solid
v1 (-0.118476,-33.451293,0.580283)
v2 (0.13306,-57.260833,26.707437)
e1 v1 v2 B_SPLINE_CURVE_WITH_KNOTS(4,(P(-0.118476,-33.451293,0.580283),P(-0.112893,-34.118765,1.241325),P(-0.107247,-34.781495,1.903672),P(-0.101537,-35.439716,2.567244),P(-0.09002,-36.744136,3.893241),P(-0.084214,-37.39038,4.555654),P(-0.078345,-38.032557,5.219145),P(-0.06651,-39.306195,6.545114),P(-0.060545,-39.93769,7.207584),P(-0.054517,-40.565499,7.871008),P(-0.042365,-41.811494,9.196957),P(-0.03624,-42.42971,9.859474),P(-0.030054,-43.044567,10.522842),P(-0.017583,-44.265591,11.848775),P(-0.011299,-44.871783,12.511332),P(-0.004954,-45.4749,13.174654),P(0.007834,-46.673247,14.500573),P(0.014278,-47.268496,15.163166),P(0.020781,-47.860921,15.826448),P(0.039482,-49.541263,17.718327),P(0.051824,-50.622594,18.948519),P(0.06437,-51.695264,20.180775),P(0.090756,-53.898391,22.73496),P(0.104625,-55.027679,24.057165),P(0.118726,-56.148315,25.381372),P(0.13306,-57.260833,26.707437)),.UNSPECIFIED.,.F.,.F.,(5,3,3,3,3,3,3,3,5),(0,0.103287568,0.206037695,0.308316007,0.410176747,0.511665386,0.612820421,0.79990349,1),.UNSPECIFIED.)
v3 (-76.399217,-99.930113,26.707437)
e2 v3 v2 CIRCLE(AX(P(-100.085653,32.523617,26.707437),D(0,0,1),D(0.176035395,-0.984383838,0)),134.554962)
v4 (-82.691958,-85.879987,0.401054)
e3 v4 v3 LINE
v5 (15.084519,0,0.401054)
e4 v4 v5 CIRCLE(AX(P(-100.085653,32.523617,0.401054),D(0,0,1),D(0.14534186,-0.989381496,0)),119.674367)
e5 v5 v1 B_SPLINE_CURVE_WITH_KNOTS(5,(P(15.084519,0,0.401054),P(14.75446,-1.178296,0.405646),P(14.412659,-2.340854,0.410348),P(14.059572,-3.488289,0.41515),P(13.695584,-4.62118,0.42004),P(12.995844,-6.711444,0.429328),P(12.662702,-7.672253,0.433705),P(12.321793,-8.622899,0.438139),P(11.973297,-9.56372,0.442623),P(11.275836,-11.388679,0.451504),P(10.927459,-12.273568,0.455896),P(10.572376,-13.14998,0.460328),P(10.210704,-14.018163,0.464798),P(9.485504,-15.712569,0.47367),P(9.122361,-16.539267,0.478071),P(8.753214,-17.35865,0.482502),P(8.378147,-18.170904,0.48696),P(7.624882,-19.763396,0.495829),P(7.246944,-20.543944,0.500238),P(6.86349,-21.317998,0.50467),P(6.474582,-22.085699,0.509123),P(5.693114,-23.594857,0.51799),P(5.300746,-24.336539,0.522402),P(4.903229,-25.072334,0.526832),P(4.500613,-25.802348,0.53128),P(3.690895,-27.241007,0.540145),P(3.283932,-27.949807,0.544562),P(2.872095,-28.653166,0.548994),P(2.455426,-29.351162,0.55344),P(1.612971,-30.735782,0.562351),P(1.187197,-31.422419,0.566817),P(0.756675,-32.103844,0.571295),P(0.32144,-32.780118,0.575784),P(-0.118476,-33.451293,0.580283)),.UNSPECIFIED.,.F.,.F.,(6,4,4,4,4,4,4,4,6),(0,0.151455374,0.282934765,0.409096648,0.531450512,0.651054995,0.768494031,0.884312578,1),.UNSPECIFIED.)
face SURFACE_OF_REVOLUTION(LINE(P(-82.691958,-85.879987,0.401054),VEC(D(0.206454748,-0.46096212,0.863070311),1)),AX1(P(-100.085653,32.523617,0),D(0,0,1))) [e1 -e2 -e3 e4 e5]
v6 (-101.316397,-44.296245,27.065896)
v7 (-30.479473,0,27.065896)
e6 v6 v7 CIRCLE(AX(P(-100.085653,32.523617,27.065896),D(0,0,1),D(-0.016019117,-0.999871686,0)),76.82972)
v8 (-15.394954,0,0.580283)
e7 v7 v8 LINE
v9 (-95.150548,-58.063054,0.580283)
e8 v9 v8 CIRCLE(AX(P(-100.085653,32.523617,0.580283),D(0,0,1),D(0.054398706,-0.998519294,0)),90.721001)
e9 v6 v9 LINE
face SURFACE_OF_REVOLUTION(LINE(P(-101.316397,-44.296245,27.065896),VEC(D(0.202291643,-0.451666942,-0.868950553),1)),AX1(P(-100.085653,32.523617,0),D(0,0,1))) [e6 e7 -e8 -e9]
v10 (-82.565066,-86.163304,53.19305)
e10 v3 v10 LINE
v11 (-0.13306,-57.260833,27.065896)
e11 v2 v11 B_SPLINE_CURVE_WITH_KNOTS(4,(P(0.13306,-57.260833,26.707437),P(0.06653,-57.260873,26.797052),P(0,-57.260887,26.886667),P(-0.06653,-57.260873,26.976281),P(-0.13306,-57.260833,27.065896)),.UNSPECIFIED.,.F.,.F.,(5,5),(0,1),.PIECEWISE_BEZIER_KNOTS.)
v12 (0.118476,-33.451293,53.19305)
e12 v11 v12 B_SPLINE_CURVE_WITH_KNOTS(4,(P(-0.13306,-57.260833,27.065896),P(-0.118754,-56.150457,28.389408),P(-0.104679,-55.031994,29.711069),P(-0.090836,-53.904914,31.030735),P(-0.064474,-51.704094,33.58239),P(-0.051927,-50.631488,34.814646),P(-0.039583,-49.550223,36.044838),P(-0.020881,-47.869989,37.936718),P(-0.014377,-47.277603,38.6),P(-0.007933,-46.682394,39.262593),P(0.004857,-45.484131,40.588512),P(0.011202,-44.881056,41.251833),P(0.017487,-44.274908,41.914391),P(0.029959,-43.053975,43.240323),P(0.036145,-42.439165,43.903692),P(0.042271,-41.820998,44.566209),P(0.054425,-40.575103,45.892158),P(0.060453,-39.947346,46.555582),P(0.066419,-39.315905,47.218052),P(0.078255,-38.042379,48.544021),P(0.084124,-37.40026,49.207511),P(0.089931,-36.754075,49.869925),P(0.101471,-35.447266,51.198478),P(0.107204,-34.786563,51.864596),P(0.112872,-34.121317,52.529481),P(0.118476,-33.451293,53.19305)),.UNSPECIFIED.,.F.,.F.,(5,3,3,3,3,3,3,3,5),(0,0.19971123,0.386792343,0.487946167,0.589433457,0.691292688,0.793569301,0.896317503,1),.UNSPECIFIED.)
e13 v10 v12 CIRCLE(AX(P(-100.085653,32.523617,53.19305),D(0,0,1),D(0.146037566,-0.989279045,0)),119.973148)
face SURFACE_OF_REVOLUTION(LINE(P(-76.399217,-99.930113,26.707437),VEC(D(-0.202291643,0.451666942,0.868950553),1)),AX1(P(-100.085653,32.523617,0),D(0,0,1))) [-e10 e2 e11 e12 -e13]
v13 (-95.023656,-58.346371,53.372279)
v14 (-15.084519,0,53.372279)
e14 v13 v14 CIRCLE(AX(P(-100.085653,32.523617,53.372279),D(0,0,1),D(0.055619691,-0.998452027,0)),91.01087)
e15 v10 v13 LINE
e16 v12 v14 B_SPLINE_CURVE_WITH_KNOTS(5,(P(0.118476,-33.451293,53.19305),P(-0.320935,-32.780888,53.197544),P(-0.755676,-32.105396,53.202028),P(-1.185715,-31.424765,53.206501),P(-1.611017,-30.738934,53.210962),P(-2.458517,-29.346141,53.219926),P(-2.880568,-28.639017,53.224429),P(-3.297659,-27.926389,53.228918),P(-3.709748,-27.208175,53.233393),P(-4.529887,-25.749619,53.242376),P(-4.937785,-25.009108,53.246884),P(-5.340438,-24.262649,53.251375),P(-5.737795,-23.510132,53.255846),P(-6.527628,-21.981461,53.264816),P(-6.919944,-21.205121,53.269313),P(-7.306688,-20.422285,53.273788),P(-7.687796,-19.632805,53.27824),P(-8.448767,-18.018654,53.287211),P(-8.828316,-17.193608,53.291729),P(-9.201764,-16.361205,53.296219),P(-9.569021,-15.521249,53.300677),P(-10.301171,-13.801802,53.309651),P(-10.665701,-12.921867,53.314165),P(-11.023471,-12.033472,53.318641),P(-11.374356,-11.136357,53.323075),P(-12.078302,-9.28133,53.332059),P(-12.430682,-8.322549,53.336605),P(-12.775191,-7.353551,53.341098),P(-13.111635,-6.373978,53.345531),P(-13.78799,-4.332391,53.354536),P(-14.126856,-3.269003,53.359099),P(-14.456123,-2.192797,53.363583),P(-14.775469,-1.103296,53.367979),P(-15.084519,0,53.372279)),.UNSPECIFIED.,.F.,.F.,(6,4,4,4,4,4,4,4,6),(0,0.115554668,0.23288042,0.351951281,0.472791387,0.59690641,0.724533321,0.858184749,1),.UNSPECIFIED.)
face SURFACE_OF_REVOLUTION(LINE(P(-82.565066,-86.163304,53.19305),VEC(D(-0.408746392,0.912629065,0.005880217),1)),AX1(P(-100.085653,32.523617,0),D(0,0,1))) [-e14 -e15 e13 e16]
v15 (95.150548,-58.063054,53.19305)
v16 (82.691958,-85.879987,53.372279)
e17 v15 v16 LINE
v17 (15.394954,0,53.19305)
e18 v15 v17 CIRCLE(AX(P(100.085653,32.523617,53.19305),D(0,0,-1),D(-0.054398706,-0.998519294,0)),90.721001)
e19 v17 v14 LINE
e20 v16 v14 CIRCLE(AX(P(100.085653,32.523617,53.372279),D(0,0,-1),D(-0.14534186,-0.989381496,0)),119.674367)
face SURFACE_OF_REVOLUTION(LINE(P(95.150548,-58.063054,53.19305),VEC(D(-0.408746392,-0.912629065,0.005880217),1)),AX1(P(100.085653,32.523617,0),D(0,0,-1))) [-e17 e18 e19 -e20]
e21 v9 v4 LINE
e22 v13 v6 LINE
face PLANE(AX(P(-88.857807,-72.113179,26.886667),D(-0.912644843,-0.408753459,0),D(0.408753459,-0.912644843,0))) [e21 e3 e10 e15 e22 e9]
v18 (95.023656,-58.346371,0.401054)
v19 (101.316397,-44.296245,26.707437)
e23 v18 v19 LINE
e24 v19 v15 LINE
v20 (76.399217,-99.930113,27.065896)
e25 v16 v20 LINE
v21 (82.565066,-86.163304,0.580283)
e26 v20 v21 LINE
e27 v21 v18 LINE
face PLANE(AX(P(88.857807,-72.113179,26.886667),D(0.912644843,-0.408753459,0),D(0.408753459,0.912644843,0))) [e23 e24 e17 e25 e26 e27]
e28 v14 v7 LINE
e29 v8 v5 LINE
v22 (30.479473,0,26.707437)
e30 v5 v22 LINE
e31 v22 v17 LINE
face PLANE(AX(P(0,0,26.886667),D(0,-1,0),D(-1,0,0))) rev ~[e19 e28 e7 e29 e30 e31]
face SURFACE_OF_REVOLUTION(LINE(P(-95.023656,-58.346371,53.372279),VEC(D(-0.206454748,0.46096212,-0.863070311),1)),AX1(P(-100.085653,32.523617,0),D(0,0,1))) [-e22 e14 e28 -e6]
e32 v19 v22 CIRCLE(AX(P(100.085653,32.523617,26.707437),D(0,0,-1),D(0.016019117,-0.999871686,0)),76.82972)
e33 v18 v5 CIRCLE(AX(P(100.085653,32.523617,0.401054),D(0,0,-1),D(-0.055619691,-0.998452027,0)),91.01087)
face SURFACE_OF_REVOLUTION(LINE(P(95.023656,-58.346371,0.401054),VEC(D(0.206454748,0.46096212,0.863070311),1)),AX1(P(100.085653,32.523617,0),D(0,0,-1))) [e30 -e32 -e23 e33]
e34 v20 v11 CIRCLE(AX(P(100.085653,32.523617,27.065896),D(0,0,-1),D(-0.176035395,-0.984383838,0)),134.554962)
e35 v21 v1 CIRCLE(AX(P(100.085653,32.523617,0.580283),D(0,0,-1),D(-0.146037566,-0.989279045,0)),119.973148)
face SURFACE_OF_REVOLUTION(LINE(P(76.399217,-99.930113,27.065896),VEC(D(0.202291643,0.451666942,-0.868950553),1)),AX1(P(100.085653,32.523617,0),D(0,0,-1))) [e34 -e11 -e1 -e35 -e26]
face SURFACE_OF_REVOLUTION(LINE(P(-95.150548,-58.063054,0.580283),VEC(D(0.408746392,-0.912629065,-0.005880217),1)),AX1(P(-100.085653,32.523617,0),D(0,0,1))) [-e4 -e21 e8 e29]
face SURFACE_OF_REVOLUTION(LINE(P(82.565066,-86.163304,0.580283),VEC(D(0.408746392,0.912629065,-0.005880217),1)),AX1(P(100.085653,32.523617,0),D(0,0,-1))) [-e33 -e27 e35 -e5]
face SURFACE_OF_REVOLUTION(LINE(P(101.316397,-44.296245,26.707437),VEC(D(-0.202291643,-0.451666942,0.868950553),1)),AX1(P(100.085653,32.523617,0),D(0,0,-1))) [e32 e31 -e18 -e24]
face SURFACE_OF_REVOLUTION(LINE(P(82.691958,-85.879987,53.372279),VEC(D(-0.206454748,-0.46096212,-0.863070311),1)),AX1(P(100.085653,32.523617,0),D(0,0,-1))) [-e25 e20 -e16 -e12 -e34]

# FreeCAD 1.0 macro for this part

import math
import FreeCAD as App
import Part
import Sketcher
Q = App.Units.Quantity

doc = App.newDocument("Part")
params = doc.addObject("Spreadsheet::Sheet", "Params")
for row, (alias, value) in enumerate([
    ("sketch1_length", "1.2 in"),
    ("sketch3_length", "1.2 in"),
], start=1):
    params.set(f"A{row}", alias)
    params.set(f"B{row}", "=" + value)
    params.setAlias(f"B{row}", alias)

body = doc.addObject("PartDesign::Body", "Body")

# Sketch on XZ plane
sketch1 = body.newObject("Sketcher::SketchObject", "Sketch")
sketch1.AttachmentSupport = (doc.getObject("XZ_Plane"), [""])
sketch1.MapMode = "FlatFace"
sketch1.addGeometry(Part.LineSegment(App.Vector(-30.479473, 27.065896, 0), App.Vector(-15.394954, 0.580283, 0)), False)
sketch1.addGeometry(Part.LineSegment(App.Vector(-15.394954, 0.580283, 0), App.Vector(15.084519, 0.401054, 0)), False)
sketch1.addGeometry(Part.LineSegment(App.Vector(15.084519, 0.401054, 0), App.Vector(30.479473, 26.707437, 0)), False)
sketch1.addGeometry(Part.LineSegment(App.Vector(30.479473, 26.707437, 0), App.Vector(15.394954, 53.19305, 0)), False)
sketch1.addGeometry(Part.LineSegment(App.Vector(15.394954, 53.19305, 0), App.Vector(-15.084519, 53.372279, 0)), False)
sketch1.addGeometry(Part.LineSegment(App.Vector(-15.084519, 53.372279, 0), App.Vector(-30.479473, 27.065896, 0)), False)
sketch1.addConstraint(Sketcher.Constraint("Coincident", 0, 2, 1, 1))
sketch1.addConstraint(Sketcher.Constraint("Coincident", 1, 2, 2, 1))
sketch1.addConstraint(Sketcher.Constraint("Coincident", 2, 2, 3, 1))
sketch1.addConstraint(Sketcher.Constraint("Coincident", 3, 2, 4, 1))
sketch1.addConstraint(Sketcher.Constraint("Coincident", 4, 2, 5, 1))
sketch1.addConstraint(Sketcher.Constraint("Coincident", 5, 2, 0, 1))
sketch1.addConstraint(Sketcher.Constraint("Parallel", 0, 3))
sketch1.addConstraint(Sketcher.Constraint("Parallel", 1, 4))
sketch1.addConstraint(Sketcher.Constraint("Parallel", 2, 5))
sketch1.addConstraint(Sketcher.Constraint("Equal", 0, 1))
sketch1.addConstraint(Sketcher.Constraint("Equal", 1, 2))
sketch1.addConstraint(Sketcher.Constraint("Equal", 2, 3))
sketch1.addConstraint(Sketcher.Constraint("Distance", 0, Q("1.2 in")))
sketch1.addConstraint(Sketcher.Constraint("DistanceX", -1, 1, 1, 2, Q("15.084519 mm")))
sketch1.addConstraint(Sketcher.Constraint("DistanceY", -1, 1, 3, 2, Q("53.19305 mm")))
sketch1.addConstraint(Sketcher.Constraint("DistanceX", 4, 2, -1, 1, Q("15.084519 mm")))
sketch1.addConstraint(Sketcher.Constraint("DistanceY", -1, 1, 4, 2, Q("53.372279 mm")))
sketch1.addConstraint(Sketcher.Constraint("DistanceX", 3, 2, 2, 2, Q("15.084519 mm")))
sketch1.setExpression("Constraints[12]", "Params.sketch1_length")

# Sketch on XY plane
sketch2 = body.newObject("Sketcher::SketchObject", "Sketch001")
sketch2.AttachmentSupport = (doc.getObject("XY_Plane"), [""])
sketch2.MapMode = "FlatFace"
sketch2.addGeometry(Part.ArcOfCircle(Part.Circle(App.Vector(-100.085653, 32.523617, 0), App.Vector(0, 0, 1), 105.237463), math.radians(-83.875423), math.radians(-18.001976)), False)
sketch2.addConstraint(Sketcher.Constraint("Coincident", 0, 2, -1, 1))
sketch2.addConstraint(Sketcher.Constraint("Radius", 0, Q("105.237463 mm")))
sketch2.addConstraint(Sketcher.Constraint("DistanceY", 0, 1, -1, 1, Q("72.113179 mm")))
sketch2.addConstraint(Sketcher.Constraint("DistanceX", 0, 3, -1, 1, Q("100.085653 mm")))
doc.recompute()

additivepipe = body.newObject("PartDesign::AdditivePipe", "AdditivePipe")
additivepipe.Profile = sketch1
additivepipe.Spine = (sketch2, ["Edge1"])

# Sketch on XZ plane
sketch3 = body.newObject("Sketcher::SketchObject", "Sketch002")
sketch3.AttachmentSupport = (doc.getObject("XZ_Plane"), [""])
sketch3.MapMode = "FlatFace"
sketch3.addGeometry(Part.LineSegment(App.Vector(-30.479473, 27.065896, 0), App.Vector(-15.394954, 0.580283, 0)), False)
sketch3.addGeometry(Part.LineSegment(App.Vector(-15.394954, 0.580283, 0), App.Vector(15.084519, 0.401054, 0)), False)
sketch3.addGeometry(Part.LineSegment(App.Vector(15.084519, 0.401054, 0), App.Vector(30.479473, 26.707437, 0)), False)
sketch3.addGeometry(Part.LineSegment(App.Vector(30.479473, 26.707437, 0), App.Vector(15.394954, 53.19305, 0)), False)
sketch3.addGeometry(Part.LineSegment(App.Vector(15.394954, 53.19305, 0), App.Vector(-15.084519, 53.372279, 0)), False)
sketch3.addGeometry(Part.LineSegment(App.Vector(-15.084519, 53.372279, 0), App.Vector(-30.479473, 27.065896, 0)), False)
sketch3.addConstraint(Sketcher.Constraint("Coincident", 0, 2, 1, 1))
sketch3.addConstraint(Sketcher.Constraint("Coincident", 1, 2, 2, 1))
sketch3.addConstraint(Sketcher.Constraint("Coincident", 2, 2, 3, 1))
sketch3.addConstraint(Sketcher.Constraint("Coincident", 3, 2, 4, 1))
sketch3.addConstraint(Sketcher.Constraint("Coincident", 4, 2, 5, 1))
sketch3.addConstraint(Sketcher.Constraint("Coincident", 5, 2, 0, 1))
sketch3.addConstraint(Sketcher.Constraint("Parallel", 0, 3))
sketch3.addConstraint(Sketcher.Constraint("Parallel", 1, 4))
sketch3.addConstraint(Sketcher.Constraint("Parallel", 2, 5))
sketch3.addConstraint(Sketcher.Constraint("Equal", 0, 1))
sketch3.addConstraint(Sketcher.Constraint("Equal", 1, 2))
sketch3.addConstraint(Sketcher.Constraint("Equal", 2, 3))
sketch3.addConstraint(Sketcher.Constraint("Distance", 0, Q("1.2 in")))
sketch3.addConstraint(Sketcher.Constraint("DistanceX", -1, 1, 1, 2, Q("15.084519 mm")))
sketch3.addConstraint(Sketcher.Constraint("DistanceY", -1, 1, 3, 2, Q("53.19305 mm")))
sketch3.addConstraint(Sketcher.Constraint("DistanceX", 4, 2, -1, 1, Q("15.084519 mm")))
sketch3.addConstraint(Sketcher.Constraint("DistanceY", -1, 1, 4, 2, Q("53.372279 mm")))
sketch3.addConstraint(Sketcher.Constraint("DistanceX", 3, 2, 2, 2, Q("15.084519 mm")))
sketch3.setExpression("Constraints[12]", "Params.sketch3_length")

# Sketch on XY plane
sketch4 = body.newObject("Sketcher::SketchObject", "Sketch003")
sketch4.AttachmentSupport = (doc.getObject("XY_Plane"), [""])
sketch4.MapMode = "FlatFace"
sketch4.addGeometry(Part.ArcOfCircle(Part.Circle(App.Vector(100.085653, 32.523617, 0), App.Vector(0, 0, 1), 105.237463), math.radians(-161.998024), math.radians(-96.124577)), False)
sketch4.addConstraint(Sketcher.Constraint("Coincident", 0, 1, -1, 1))
sketch4.addConstraint(Sketcher.Constraint("Radius", 0, Q("105.237463 mm")))
sketch4.addConstraint(Sketcher.Constraint("DistanceY", 0, 2, -1, 1, Q("72.113179 mm")))
sketch4.addConstraint(Sketcher.Constraint("DistanceX", -1, 1, 0, 3, Q("100.085653 mm")))
doc.recompute()

additivepipe2 = body.newObject("PartDesign::AdditivePipe", "AdditivePipe001")
additivepipe2.Profile = sketch3
additivepipe2.Spine = (sketch4, ["Edge1"])

doc.recompute()
